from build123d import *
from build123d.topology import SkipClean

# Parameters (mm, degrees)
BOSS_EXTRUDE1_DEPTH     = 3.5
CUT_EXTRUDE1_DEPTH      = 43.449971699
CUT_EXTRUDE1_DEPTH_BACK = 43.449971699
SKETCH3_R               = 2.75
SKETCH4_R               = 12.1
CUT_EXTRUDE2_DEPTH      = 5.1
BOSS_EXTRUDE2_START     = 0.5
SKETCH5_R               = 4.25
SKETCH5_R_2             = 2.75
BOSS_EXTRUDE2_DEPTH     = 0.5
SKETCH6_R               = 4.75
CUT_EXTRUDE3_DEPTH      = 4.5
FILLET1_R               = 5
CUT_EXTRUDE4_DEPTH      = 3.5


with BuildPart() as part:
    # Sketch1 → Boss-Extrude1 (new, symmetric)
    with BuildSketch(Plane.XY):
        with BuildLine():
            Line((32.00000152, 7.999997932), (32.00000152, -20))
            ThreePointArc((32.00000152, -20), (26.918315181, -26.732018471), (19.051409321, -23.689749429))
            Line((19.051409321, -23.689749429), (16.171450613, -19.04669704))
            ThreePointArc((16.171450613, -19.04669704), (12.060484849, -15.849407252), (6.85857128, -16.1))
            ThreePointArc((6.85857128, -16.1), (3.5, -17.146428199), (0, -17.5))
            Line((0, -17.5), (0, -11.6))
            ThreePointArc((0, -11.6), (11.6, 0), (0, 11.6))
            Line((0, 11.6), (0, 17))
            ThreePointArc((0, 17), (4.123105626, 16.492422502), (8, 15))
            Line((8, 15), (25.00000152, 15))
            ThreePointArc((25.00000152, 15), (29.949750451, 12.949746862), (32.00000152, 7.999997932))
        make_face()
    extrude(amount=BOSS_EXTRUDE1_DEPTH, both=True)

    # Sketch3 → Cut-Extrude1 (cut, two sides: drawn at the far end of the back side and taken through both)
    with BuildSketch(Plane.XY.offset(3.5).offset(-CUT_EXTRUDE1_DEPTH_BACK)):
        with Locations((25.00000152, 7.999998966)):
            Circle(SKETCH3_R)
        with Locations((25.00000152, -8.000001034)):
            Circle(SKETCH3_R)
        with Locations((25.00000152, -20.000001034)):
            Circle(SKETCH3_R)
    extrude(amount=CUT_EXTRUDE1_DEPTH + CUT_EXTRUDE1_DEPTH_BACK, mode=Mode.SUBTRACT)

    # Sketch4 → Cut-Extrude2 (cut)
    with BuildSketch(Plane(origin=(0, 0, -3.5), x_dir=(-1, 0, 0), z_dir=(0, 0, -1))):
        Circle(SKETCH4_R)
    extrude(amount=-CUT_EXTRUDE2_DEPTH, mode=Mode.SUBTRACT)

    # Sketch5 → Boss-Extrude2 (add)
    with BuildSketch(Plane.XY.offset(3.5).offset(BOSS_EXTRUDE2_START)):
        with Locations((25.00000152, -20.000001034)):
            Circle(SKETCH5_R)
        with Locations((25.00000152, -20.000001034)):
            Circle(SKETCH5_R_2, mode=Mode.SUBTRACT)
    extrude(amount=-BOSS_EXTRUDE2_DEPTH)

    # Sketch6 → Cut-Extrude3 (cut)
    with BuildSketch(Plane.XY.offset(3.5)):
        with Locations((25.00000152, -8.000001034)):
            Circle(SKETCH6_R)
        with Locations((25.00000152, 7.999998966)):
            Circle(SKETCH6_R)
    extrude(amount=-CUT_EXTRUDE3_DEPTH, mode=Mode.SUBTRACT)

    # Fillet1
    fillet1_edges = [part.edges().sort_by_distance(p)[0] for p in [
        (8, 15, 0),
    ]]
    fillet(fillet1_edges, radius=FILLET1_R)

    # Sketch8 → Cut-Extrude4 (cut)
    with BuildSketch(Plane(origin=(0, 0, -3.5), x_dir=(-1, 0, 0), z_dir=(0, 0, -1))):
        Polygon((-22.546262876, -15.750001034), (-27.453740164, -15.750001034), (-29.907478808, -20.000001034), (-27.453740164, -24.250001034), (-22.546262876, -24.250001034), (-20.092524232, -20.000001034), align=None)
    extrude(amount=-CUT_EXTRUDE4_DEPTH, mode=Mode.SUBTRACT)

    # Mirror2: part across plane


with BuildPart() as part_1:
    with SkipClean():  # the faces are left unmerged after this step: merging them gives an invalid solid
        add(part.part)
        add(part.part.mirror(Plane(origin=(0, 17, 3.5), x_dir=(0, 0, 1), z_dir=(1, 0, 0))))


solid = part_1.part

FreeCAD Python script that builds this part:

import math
import FreeCAD as App
import Part
import Sketcher
Q = App.Units.Quantity


def edges_at(feature, points):
    """Names of the edges that pass closest to the given points."""
    edges = feature.Shape.Edges
    near = lambda p: min(range(len(edges)), key=lambda i: edges[i].distToShape(Part.Vertex(*p))[0])
    return sorted({f"Edge{near(p) + 1}" for p in points})


def add_polygon(sketch, points):
    """Adds a closed chain of lines whose ends are joined by coincident constraints."""
    first, n = sketch.GeometryCount, len(points)
    for a, b in zip(points, points[1:] + points[:1]):
        sketch.addGeometry(Part.LineSegment(App.Vector(*a, 0), App.Vector(*b, 0)), False)
    for i in range(n):
        sketch.addConstraint(Sketcher.Constraint("Coincident", first + i, 2, first + (i + 1) % n, 1))

doc = App.newDocument("Part")
body = doc.addObject("PartDesign::Body", "Body")

# Sketch on XY plane
sketch1 = body.newObject("Sketcher::SketchObject", "Sketch")
sketch1.AttachmentSupport = (doc.getObject("XY_Plane"), [""])
sketch1.MapMode = "FlatFace"
sketch1.addGeometry(Part.LineSegment(App.Vector(32, -20, 0), App.Vector(32, 8, 0)), False)
sketch1.addGeometry(Part.ArcOfCircle(Part.Circle(App.Vector(25, 8, 0), App.Vector(0, 0, 1), 7), math.radians(0), math.radians(90)), False)
sketch1.addGeometry(Part.LineSegment(App.Vector(25, 15, 0), App.Vector(8, 15, 0)), False)
sketch1.addGeometry(Part.ArcOfCircle(Part.Circle(App.Vector(0, 0, 0), App.Vector(0, 0, 1), 17), math.radians(62), math.radians(90)), False)
sketch1.addGeometry(Part.LineSegment(App.Vector(0, 17, 0), App.Vector(0, 12, 0)), False)
sketch1.addGeometry(Part.ArcOfCircle(Part.Circle(App.Vector(0, 0, 0), App.Vector(0, 0, 1), 12), math.radians(-90), math.radians(90)), False)
sketch1.addGeometry(Part.LineSegment(App.Vector(0, -12, 0), App.Vector(0, -18, 0)), False)
sketch1.addGeometry(Part.ArcOfCircle(Part.Circle(App.Vector(0, 0, 0), App.Vector(0, 0, 1), 18), math.radians(-90), math.radians(-67)), False)
sketch1.addGeometry(Part.ArcOfCircle(Part.Circle(App.Vector(10, -23, 0), App.Vector(0, 0, 1), 8), math.radians(32), math.radians(113)), False)
sketch1.addGeometry(Part.LineSegment(App.Vector(16, -19, 0), App.Vector(19, -24, 0)), False)
sketch1.addGeometry(Part.ArcOfCircle(Part.Circle(App.Vector(25, -20, 0), App.Vector(0, 0, 1), 7), math.radians(-148), math.radians(0)), False)
sketch1.addConstraint(Sketcher.Constraint("Tangent", 0, 2, 1, 1))
sketch1.addConstraint(Sketcher.Constraint("Tangent", 1, 2, 2, 1))
sketch1.addConstraint(Sketcher.Constraint("Coincident", 2, 2, 3, 1))
sketch1.addConstraint(Sketcher.Constraint("Coincident", 3, 2, 4, 1))
sketch1.addConstraint(Sketcher.Constraint("Coincident", 4, 2, 5, 2))
sketch1.addConstraint(Sketcher.Constraint("Coincident", 5, 1, 6, 1))
sketch1.addConstraint(Sketcher.Constraint("Coincident", 6, 2, 7, 1))
sketch1.addConstraint(Sketcher.Constraint("Tangent", 7, 2, 8, 2))
sketch1.addConstraint(Sketcher.Constraint("Tangent", 8, 1, 9, 1))
sketch1.addConstraint(Sketcher.Constraint("Tangent", 9, 2, 10, 1))
sketch1.addConstraint(Sketcher.Constraint("Tangent", 10, 2, 0, 1))
sketch1.addConstraint(Sketcher.Constraint("Vertical", 0))
sketch1.addConstraint(Sketcher.Constraint("Horizontal", 2))
sketch1.addConstraint(Sketcher.Constraint("Vertical", 4))
sketch1.addConstraint(Sketcher.Constraint("Vertical", 6))
sketch1.addConstraint(Sketcher.Constraint("Coincident", 3, 3, -1, 1))
sketch1.addConstraint(Sketcher.Constraint("Coincident", 5, 3, -1, 1))
sketch1.addConstraint(Sketcher.Constraint("Coincident", 7, 3, -1, 1))
sketch1.addConstraint(Sketcher.Constraint("Equal", 1, 10))
sketch1.addConstraint(Sketcher.Constraint("PointOnObject", 3, 2, -2))
sketch1.addConstraint(Sketcher.Constraint("PointOnObject", 5, 1, -2))
sketch1.addConstraint(Sketcher.Constraint("Radius", 1, 6.999999))
sketch1.addConstraint(Sketcher.Constraint("Radius", 3, 17.0))
sketch1.addConstraint(Sketcher.Constraint("Radius", 5, 11.6))
sketch1.addConstraint(Sketcher.Constraint("Radius", 7, 17.5))
sketch1.addConstraint(Sketcher.Constraint("Radius", 8, 7.5))
sketch1.addConstraint(Sketcher.Constraint("DistanceX", 2, 2, 2, 1, 17.000002))
sketch1.addConstraint(Sketcher.Constraint("DistanceY", -1, 1, 1, 3, 8.000001))
sketch1.addConstraint(Sketcher.Constraint("DistanceY", 8, 3, -1, 1, 23.0))
sketch1.addConstraint(Sketcher.Constraint("DistanceY", 10, 3, -1, 1, 20.0))
pad1 = body.newObject("PartDesign::Pad", "Pad")
pad1.Profile = sketch1
pad1.Length = 7
pad1.Midplane = True

# Sketch on XY plane
sketch2 = body.newObject("Sketcher::SketchObject", "Sketch001")
sketch2.AttachmentSupport = (doc.getObject("XY_Plane"), [""])
sketch2.MapMode = "FlatFace"
sketch2.AttachmentOffset = App.Placement(App.Vector(0, 0, 3.5), App.Rotation())
sketch2.addGeometry(Part.Circle(App.Vector(25, 8, 0), App.Vector(0, 0, 1), 2.8), False)
sketch2.addGeometry(Part.Circle(App.Vector(25, -8, 0), App.Vector(0, 0, 1), 2.8), False)
sketch2.addGeometry(Part.Circle(App.Vector(25, -20, 0), App.Vector(0, 0, 1), 2.8), False)
sketch2.addConstraint(Sketcher.Constraint("Equal", 0, 1))
sketch2.addConstraint(Sketcher.Constraint("Equal", 1, 2))
sketch2.addConstraint(Sketcher.Constraint("Symmetric", 0, 3, 1, 3, -1))
sketch2.addConstraint(Sketcher.Constraint("Vertical", 1, 3, 2, 3))
sketch2.addConstraint(Sketcher.Constraint("Diameter", 0, 5.5))
sketch2.addConstraint(Sketcher.Constraint("DistanceX", -1, 1, 0, 3, 25.000002))
sketch2.addConstraint(Sketcher.Constraint("DistanceY", -1, 1, 0, 3, 7.999999))
sketch2.addConstraint(Sketcher.Constraint("DistanceY", 2, 3, -1, 1, 20.000001))
pocket1 = body.newObject("PartDesign::Pocket", "Pocket")
pocket1.Profile = sketch2
pocket1.Type = "ThroughAll"
pocket1.Midplane = True

# Sketch on XY plane
sketch3 = body.newObject("Sketcher::SketchObject", "Sketch002")
sketch3.AttachmentSupport = (doc.getObject("XY_Plane"), [""])
sketch3.MapMode = "FlatFace"
sketch3.AttachmentOffset = App.Placement(App.Vector(0, 0, -3.5), App.Rotation())
sketch3.addGeometry(Part.Circle(App.Vector(0, 0, 0), App.Vector(0, 0, 1), 12), False)
sketch3.addConstraint(Sketcher.Constraint("Coincident", 0, 3, -1, 1))
sketch3.addConstraint(Sketcher.Constraint("Diameter", 0, 24.2))
pocket2 = body.newObject("PartDesign::Pocket", "Pocket001")
pocket2.Profile = sketch3
pocket2.Length = 5.1
pocket2.Reversed = True

# Sketch on XY plane
sketch4 = body.newObject("Sketcher::SketchObject", "Sketch003")
sketch4.AttachmentSupport = (doc.getObject("XY_Plane"), [""])
sketch4.MapMode = "FlatFace"
sketch4.AttachmentOffset = App.Placement(App.Vector(0, 0, 4), App.Rotation())
sketch4.addGeometry(Part.Circle(App.Vector(25, -20, 0), App.Vector(0, 0, 1), 4.2), False)
sketch4.addGeometry(Part.Circle(App.Vector(25, -20, 0), App.Vector(0, 0, 1), 2.8), False)
sketch4.addConstraint(Sketcher.Constraint("Coincident", 1, 3, 0, 3))
sketch4.addConstraint(Sketcher.Constraint("Diameter", 0, 8.5))
sketch4.addConstraint(Sketcher.Constraint("Diameter", 1, 5.5))
sketch4.addConstraint(Sketcher.Constraint("DistanceX", -1, 1, 0, 3, 25.000002))
sketch4.addConstraint(Sketcher.Constraint("DistanceY", 0, 3, -1, 1, 20.000001))
pad2 = body.newObject("PartDesign::Pad", "Pad001")
pad2.Profile = sketch4
pad2.Length = 0.5
pad2.Reversed = True

# Sketch on XY plane
sketch5 = body.newObject("Sketcher::SketchObject", "Sketch004")
sketch5.AttachmentSupport = (doc.getObject("XY_Plane"), [""])
sketch5.MapMode = "FlatFace"
sketch5.AttachmentOffset = App.Placement(App.Vector(0, 0, 3.5), App.Rotation())
sketch5.addGeometry(Part.Circle(App.Vector(25, -8, 0), App.Vector(0, 0, 1), 4.8), False)
sketch5.addGeometry(Part.Circle(App.Vector(25, 8, 0), App.Vector(0, 0, 1), 4.8), False)
sketch5.addConstraint(Sketcher.Constraint("Equal", 0, 1))
sketch5.addConstraint(Sketcher.Constraint("Symmetric", 0, 3, 1, 3, -1))
sketch5.addConstraint(Sketcher.Constraint("Diameter", 0, 9.5))
sketch5.addConstraint(Sketcher.Constraint("DistanceX", -1, 1, 0, 3, 25.000002))
sketch5.addConstraint(Sketcher.Constraint("DistanceY", 0, 3, -1, 1, 8.000001))
pocket3 = body.newObject("PartDesign::Pocket", "Pocket002")
pocket3.Profile = sketch5
pocket3.Length = 4.5
doc.recompute()

fillet = body.newObject("PartDesign::Fillet", "Fillet")
fillet.Base = (pocket3, edges_at(pocket3, [(8, 15, 0)]))
fillet.Radius = 5

# Sketch on XY plane
sketch6 = body.newObject("Sketcher::SketchObject", "Sketch005")
sketch6.AttachmentSupport = (doc.getObject("XY_Plane"), [""])
sketch6.MapMode = "FlatFace"
sketch6.AttachmentOffset = App.Placement(App.Vector(0, 0, -3.5), App.Rotation())
add_polygon(sketch6, [(22.5, -15.8), (27.5, -15.8), (29.9, -20), (27.5, -24.3), (22.5, -24.3), (20.1, -20)])  # lines 0-5
sketch6.addConstraint(Sketcher.Constraint("Horizontal", 0))
sketch6.addConstraint(Sketcher.Constraint("Horizontal", 3))
sketch6.addConstraint(Sketcher.Constraint("Parallel", 1, 4))
sketch6.addConstraint(Sketcher.Constraint("Parallel", 2, 5))
sketch6.addConstraint(Sketcher.Constraint("Horizontal", 1, 2, 4, 2))
sketch6.addConstraint(Sketcher.Constraint("Vertical", 0, 2, 2, 2))
sketch6.addConstraint(Sketcher.Constraint("Vertical", 3, 2, 5, 2))
sketch6.addConstraint(Sketcher.Constraint("Angle", 1, Q("-60 deg")))
sketch6.addConstraint(Sketcher.Constraint("DistanceY", 1, 2, -1, 1, 20.000001))
sketch6.addConstraint(Sketcher.Constraint("DistanceY", 2, 2, 0, 2, 8.5))
sketch6.addConstraint(Sketcher.Constraint("DistanceX", 0, 1, 0, 2, 4.907477))
sketch6.addConstraint(Sketcher.Constraint("DistanceX", -1, 1, 0, 2, 27.45374))
pocket4 = body.newObject("PartDesign::Pocket", "Pocket003")
pocket4.Profile = sketch6
pocket4.Length = 3.5
pocket4.Reversed = True
body2 = doc.addObject("PartDesign::Body", "Body001")
doc.recompute()

body2.BaseFeature = body
doc.recompute()

mirroring = doc.addObject("Part::Mirroring", "Mirroring")
mirroring.Source = body
mirroring.Base = App.Vector(0, 17, 3.5)
mirroring.Normal = App.Vector(1, 0, 0)
body3 = doc.addObject("PartDesign::Body", "Body002")
body3.BaseFeature = mirroring
boolean = body2.newObject("PartDesign::Boolean", "Boolean")
boolean.Type = "Fuse"
boolean.addObjects([body3])
doc.recompute()
mirroring.Visibility = False

doc.recompute()
